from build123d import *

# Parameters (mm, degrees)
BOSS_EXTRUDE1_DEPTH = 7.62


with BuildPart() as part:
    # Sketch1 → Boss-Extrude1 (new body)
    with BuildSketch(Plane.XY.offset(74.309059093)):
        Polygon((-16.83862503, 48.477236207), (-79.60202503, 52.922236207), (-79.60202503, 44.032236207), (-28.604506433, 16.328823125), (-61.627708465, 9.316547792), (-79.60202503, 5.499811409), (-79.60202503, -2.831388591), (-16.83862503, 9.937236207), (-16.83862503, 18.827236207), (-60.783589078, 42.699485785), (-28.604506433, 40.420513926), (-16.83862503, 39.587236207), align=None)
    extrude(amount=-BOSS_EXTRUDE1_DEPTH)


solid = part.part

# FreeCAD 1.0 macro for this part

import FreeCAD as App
import Part
import Sketcher
from FreeCAD import Vector
Q = App.Units.Quantity

doc = App.newDocument("Part")
body = doc.addObject("PartDesign::Body", "Body")

# Sketch on XY plane
sketch1 = body.newObject("Sketcher::SketchObject", "Sketch")
sketch1.AttachmentSupport = (doc.getObject("XY_Plane"), [""])
sketch1.MapMode = "FlatFace"
sketch1.AttachmentOffset = App.Placement(Vector(0, 0, 74.309059), App.Rotation())
sketch1.addGeometry(Part.LineSegment(Vector(-17, 48, 0), Vector(-80, 53, 0)), False)
sketch1.addGeometry(Part.LineSegment(Vector(-80, 53, 0), Vector(-80, 44, 0)), False)
sketch1.addGeometry(Part.LineSegment(Vector(-80, 44, 0), Vector(-29, 16, 0)), False)
sketch1.addGeometry(Part.LineSegment(Vector(-29, 16, 0), Vector(-62, 9, 0)), False)
sketch1.addGeometry(Part.LineSegment(Vector(-62, 9, 0), Vector(-80, 5, 0)), False)
sketch1.addGeometry(Part.LineSegment(Vector(-80, 5, 0), Vector(-80, -3, 0)), False)
sketch1.addGeometry(Part.LineSegment(Vector(-80, -3, 0), Vector(-17, 10, 0)), False)
sketch1.addGeometry(Part.LineSegment(Vector(-17, 10, 0), Vector(-17, 19, 0)), False)
sketch1.addGeometry(Part.LineSegment(Vector(-17, 19, 0), Vector(-61, 43, 0)), False)
sketch1.addGeometry(Part.LineSegment(Vector(-61, 43, 0), Vector(-29, 40, 0)), False)
sketch1.addGeometry(Part.LineSegment(Vector(-29, 40, 0), Vector(-17, 40, 0)), False)
sketch1.addGeometry(Part.LineSegment(Vector(-17, 40, 0), Vector(-17, 48, 0)), False)
sketch1.addConstraint(Sketcher.Constraint("Coincident", 0, 2, 1, 1))
sketch1.addConstraint(Sketcher.Constraint("Coincident", 1, 2, 2, 1))
sketch1.addConstraint(Sketcher.Constraint("Coincident", 2, 2, 3, 1))
sketch1.addConstraint(Sketcher.Constraint("Coincident", 3, 2, 4, 1))
sketch1.addConstraint(Sketcher.Constraint("Coincident", 4, 2, 5, 1))
sketch1.addConstraint(Sketcher.Constraint("Coincident", 5, 2, 6, 1))
sketch1.addConstraint(Sketcher.Constraint("Coincident", 6, 2, 7, 1))
sketch1.addConstraint(Sketcher.Constraint("Coincident", 7, 2, 8, 1))
sketch1.addConstraint(Sketcher.Constraint("Coincident", 8, 2, 9, 1))
sketch1.addConstraint(Sketcher.Constraint("Coincident", 9, 2, 10, 1))
sketch1.addConstraint(Sketcher.Constraint("Coincident", 10, 2, 11, 1))
sketch1.addConstraint(Sketcher.Constraint("Coincident", 11, 2, 0, 1))
sketch1.addConstraint(Sketcher.Constraint("Vertical", 1))
sketch1.addConstraint(Sketcher.Constraint("Vertical", 5))
sketch1.addConstraint(Sketcher.Constraint("Vertical", 7))
sketch1.addConstraint(Sketcher.Constraint("Vertical", 11))
sketch1.addConstraint(Sketcher.Constraint("Parallel", 3, 4))
sketch1.addConstraint(Sketcher.Constraint("Parallel", 2, 8))
sketch1.addConstraint(Sketcher.Constraint("Parallel", 0, 9))
sketch1.addConstraint(Sketcher.Constraint("Parallel", 9, 10))
sketch1.addConstraint(Sketcher.Constraint("Vertical", 1, 2, 4, 2))
sketch1.addConstraint(Sketcher.Constraint("Vertical", 2, 2, 9, 2))
sketch1.addConstraint(Sketcher.Constraint("Vertical", 7, 2, 10, 2))
sketch1.addConstraint(Sketcher.Constraint("Equal", 1, 7))
sketch1.addConstraint(Sketcher.Constraint("Equal", 7, 11))
sketch1.addConstraint(Sketcher.Constraint("DistanceY", 1, 2, 1, 1, Q("0.35 in")))
sketch1.addConstraint(Sketcher.Constraint("DistanceY", 5, 2, 5, 1, Q("0.328 in")))
sketch1.addConstraint(Sketcher.Constraint("DistanceX", 4, 2, 6, 2, Q("2.471 in")))
sketch1.addConstraint(Sketcher.Constraint("Distance", 3, Q("33.759501 mm")))
sketch1.addConstraint(Sketcher.Constraint("DistanceY", 6, 2, 1, 2, Q("34.095 mm")))
sketch1.addConstraint(Sketcher.Constraint("DistanceY", 7, 2, 10, 2, Q("20.76 mm")))
sketch1.addConstraint(Sketcher.Constraint("Distance", 2, Q("58.03642 mm")))
sketch1.addConstraint(Sketcher.Constraint("Distance", 4, Q("18.375079 mm")))
sketch1.addConstraint(Sketcher.Constraint("Distance", 6, Q("64.049061 mm")))
sketch1.addConstraint(Sketcher.Constraint("DistanceX", 3, 2, -1, 1, Q("61.627708 mm")))
sketch1.addConstraint(Sketcher.Constraint("DistanceY", -1, 1, 4, 2, Q("5.499811 mm")))
pad1 = body.newObject("PartDesign::Pad", "Pad")
pad1.Profile = sketch1
pad1.Length = Q("0.3 in")
pad1.Reversed = True

doc.recompute()
